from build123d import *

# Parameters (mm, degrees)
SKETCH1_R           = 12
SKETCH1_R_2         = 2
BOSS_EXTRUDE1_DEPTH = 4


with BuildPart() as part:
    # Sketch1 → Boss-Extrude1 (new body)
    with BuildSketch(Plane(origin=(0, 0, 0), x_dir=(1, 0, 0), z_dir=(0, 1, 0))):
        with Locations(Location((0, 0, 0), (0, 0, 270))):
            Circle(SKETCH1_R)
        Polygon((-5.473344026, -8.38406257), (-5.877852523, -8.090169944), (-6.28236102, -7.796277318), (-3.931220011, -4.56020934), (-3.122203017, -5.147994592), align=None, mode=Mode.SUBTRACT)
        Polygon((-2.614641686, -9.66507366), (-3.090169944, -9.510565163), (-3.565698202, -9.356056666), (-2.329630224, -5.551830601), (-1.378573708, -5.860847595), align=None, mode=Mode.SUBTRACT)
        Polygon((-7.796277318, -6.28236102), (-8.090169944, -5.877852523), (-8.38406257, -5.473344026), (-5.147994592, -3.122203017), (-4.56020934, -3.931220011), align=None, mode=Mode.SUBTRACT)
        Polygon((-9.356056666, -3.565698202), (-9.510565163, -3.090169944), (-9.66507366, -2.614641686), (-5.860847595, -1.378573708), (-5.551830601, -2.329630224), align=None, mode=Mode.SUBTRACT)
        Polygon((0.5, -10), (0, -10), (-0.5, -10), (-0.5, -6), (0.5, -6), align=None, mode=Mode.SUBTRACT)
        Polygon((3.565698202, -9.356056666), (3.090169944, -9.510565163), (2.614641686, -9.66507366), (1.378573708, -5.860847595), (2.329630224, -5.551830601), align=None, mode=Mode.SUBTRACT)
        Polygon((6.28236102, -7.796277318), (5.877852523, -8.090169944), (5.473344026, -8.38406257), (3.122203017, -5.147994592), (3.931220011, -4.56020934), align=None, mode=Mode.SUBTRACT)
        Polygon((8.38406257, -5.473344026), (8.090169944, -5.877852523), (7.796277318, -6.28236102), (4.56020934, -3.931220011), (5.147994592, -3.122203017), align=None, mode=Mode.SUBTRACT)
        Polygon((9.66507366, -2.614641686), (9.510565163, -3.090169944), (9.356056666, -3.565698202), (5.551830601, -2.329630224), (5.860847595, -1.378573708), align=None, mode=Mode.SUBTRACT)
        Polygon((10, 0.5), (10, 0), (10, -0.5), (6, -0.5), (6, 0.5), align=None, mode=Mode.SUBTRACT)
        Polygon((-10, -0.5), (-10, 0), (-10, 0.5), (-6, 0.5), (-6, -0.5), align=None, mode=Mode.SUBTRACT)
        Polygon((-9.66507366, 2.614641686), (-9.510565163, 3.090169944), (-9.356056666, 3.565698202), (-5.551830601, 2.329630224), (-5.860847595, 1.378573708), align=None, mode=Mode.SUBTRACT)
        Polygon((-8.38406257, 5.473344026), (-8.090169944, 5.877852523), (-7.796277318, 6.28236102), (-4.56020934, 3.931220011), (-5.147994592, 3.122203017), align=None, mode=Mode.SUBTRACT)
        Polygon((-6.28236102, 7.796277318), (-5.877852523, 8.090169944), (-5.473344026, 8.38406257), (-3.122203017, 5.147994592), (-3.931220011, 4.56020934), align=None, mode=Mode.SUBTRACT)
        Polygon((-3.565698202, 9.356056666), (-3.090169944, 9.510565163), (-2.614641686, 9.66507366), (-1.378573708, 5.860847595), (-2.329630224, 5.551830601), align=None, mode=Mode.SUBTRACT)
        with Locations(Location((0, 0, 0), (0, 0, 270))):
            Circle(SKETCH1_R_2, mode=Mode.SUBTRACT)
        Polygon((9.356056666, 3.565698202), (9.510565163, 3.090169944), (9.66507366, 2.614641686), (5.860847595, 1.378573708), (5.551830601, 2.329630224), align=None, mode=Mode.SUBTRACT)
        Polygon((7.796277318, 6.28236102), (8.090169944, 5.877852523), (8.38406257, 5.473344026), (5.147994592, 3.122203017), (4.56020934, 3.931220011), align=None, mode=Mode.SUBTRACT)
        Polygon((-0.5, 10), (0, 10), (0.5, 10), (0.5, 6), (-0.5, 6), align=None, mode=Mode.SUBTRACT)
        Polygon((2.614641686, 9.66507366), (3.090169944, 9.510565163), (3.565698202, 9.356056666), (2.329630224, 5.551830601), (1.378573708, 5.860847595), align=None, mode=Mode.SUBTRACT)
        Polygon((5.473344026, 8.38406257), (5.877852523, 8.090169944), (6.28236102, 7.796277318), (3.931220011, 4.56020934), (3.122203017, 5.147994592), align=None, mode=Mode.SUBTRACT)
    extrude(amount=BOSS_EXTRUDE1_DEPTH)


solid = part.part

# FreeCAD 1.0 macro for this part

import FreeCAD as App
import Part
import Sketcher
from FreeCAD import Vector
Q = App.Units.Quantity

doc = App.newDocument("Part")
body = doc.addObject("PartDesign::Body", "Body")

sketch1 = body.newObject("Sketcher::SketchObject", "Sketch")
sketch1.AttachmentSupport = (doc.getObject("XZ_Plane"), [""])
sketch1.MapMode = "FlatFace"
sketch1.addGeometry(Part.Circle(Vector(0, 0, 0), Vector(0, 0, 1), 12), False)
sketch1.addGeometry(Part.LineSegment(Vector(-5.860848, -1.378574, 0), Vector(-9.665074, -2.614642, 0)), False)
sketch1.addGeometry(Part.LineSegment(Vector(-9.665074, -2.614642, 0), Vector(-9.356057, -3.565698, 0)), False)
sketch1.addGeometry(Part.LineSegment(Vector(-9.356057, -3.565698, 0), Vector(-5.551831, -2.32963, 0)), False)
sketch1.addGeometry(Part.LineSegment(Vector(-5.551831, -2.32963, 0), Vector(-5.860848, -1.378574, 0)), False)
sketch1.addGeometry(Part.LineSegment(Vector(-5.147995, -3.122203, 0), Vector(-8.384063, -5.473344, 0)), False)
sketch1.addGeometry(Part.LineSegment(Vector(-8.384063, -5.473344, 0), Vector(-7.796277, -6.282361, 0)), False)
sketch1.addGeometry(Part.LineSegment(Vector(-7.796277, -6.282361, 0), Vector(-4.560209, -3.93122, 0)), False)
sketch1.addGeometry(Part.LineSegment(Vector(-4.560209, -3.93122, 0), Vector(-5.147995, -3.122203, 0)), False)
sketch1.addGeometry(Part.LineSegment(Vector(-3.93122, -4.560209, 0), Vector(-6.282361, -7.796277, 0)), False)
sketch1.addGeometry(Part.LineSegment(Vector(-6.282361, -7.796277, 0), Vector(-5.473344, -8.384063, 0)), False)
sketch1.addGeometry(Part.LineSegment(Vector(-5.473344, -8.384063, 0), Vector(-3.122203, -5.147995, 0)), False)
sketch1.addGeometry(Part.LineSegment(Vector(-3.122203, -5.147995, 0), Vector(-3.93122, -4.560209, 0)), False)
sketch1.addGeometry(Part.LineSegment(Vector(-2.32963, -5.551831, 0), Vector(-3.565698, -9.356057, 0)), False)
sketch1.addGeometry(Part.LineSegment(Vector(-3.565698, -9.356057, 0), Vector(-2.614642, -9.665074, 0)), False)
sketch1.addGeometry(Part.LineSegment(Vector(-2.614642, -9.665074, 0), Vector(-1.378574, -5.860848, 0)), False)
sketch1.addGeometry(Part.LineSegment(Vector(-1.378574, -5.860848, 0), Vector(-2.32963, -5.551831, 0)), False)
sketch1.addGeometry(Part.LineSegment(Vector(-0.5, -6, 0), Vector(-0.5, -10, 0)), False)
sketch1.addGeometry(Part.LineSegment(Vector(-0.5, -10, 0), Vector(0.5, -10, 0)), False)
sketch1.addGeometry(Part.LineSegment(Vector(0.5, -10, 0), Vector(0.5, -6, 0)), False)
sketch1.addGeometry(Part.LineSegment(Vector(0.5, -6, 0), Vector(-0.5, -6, 0)), False)
sketch1.addGeometry(Part.LineSegment(Vector(-6, 0.5, 0), Vector(-10, 0.5, 0)), False)
sketch1.addGeometry(Part.LineSegment(Vector(-10, 0.5, 0), Vector(-10, -0.5, 0)), False)
sketch1.addGeometry(Part.LineSegment(Vector(-10, -0.5, 0), Vector(-6, -0.5, 0)), False)
sketch1.addGeometry(Part.LineSegment(Vector(-6, -0.5, 0), Vector(-6, 0.5, 0)), False)
sketch1.addGeometry(Part.LineSegment(Vector(-5.551831, 2.32963, 0), Vector(-9.356057, 3.565698, 0)), False)
sketch1.addGeometry(Part.LineSegment(Vector(-9.356057, 3.565698, 0), Vector(-9.665074, 2.614642, 0)), False)
sketch1.addGeometry(Part.LineSegment(Vector(-9.665074, 2.614642, 0), Vector(-5.860848, 1.378574, 0)), False)
sketch1.addGeometry(Part.LineSegment(Vector(-5.860848, 1.378574, 0), Vector(-5.551831, 2.32963, 0)), False)
sketch1.addGeometry(Part.LineSegment(Vector(-4.560209, 3.93122, 0), Vector(-7.796277, 6.282361, 0)), False)
sketch1.addGeometry(Part.LineSegment(Vector(-7.796277, 6.282361, 0), Vector(-8.384063, 5.473344, 0)), False)
sketch1.addGeometry(Part.LineSegment(Vector(-8.384063, 5.473344, 0), Vector(-5.147995, 3.122203, 0)), False)
sketch1.addGeometry(Part.LineSegment(Vector(-5.147995, 3.122203, 0), Vector(-4.560209, 3.93122, 0)), False)
sketch1.addGeometry(Part.LineSegment(Vector(-3.122203, 5.147995, 0), Vector(-5.473344, 8.384063, 0)), False)
sketch1.addGeometry(Part.LineSegment(Vector(-5.473344, 8.384063, 0), Vector(-6.282361, 7.796277, 0)), False)
sketch1.addGeometry(Part.LineSegment(Vector(-6.282361, 7.796277, 0), Vector(-3.93122, 4.560209, 0)), False)
sketch1.addGeometry(Part.LineSegment(Vector(-3.93122, 4.560209, 0), Vector(-3.122203, 5.147995, 0)), False)
sketch1.addGeometry(Part.LineSegment(Vector(-1.378574, 5.860848, 0), Vector(-2.614642, 9.665074, 0)), False)
sketch1.addGeometry(Part.LineSegment(Vector(-2.614642, 9.665074, 0), Vector(-3.565698, 9.356057, 0)), False)
sketch1.addGeometry(Part.LineSegment(Vector(-3.565698, 9.356057, 0), Vector(-2.32963, 5.551831, 0)), False)
sketch1.addGeometry(Part.LineSegment(Vector(-2.32963, 5.551831, 0), Vector(-1.378574, 5.860848, 0)), False)
sketch1.addGeometry(Part.LineSegment(Vector(1.378574, -5.860848, 0), Vector(2.614642, -9.665074, 0)), False)
sketch1.addGeometry(Part.LineSegment(Vector(2.614642, -9.665074, 0), Vector(3.565698, -9.356057, 0)), False)
sketch1.addGeometry(Part.LineSegment(Vector(3.565698, -9.356057, 0), Vector(2.32963, -5.551831, 0)), False)
sketch1.addGeometry(Part.LineSegment(Vector(2.32963, -5.551831, 0), Vector(1.378574, -5.860848, 0)), False)
sketch1.addGeometry(Part.LineSegment(Vector(3.122203, -5.147995, 0), Vector(5.473344, -8.384063, 0)), False)
sketch1.addGeometry(Part.LineSegment(Vector(5.473344, -8.384063, 0), Vector(6.282361, -7.796277, 0)), False)
sketch1.addGeometry(Part.LineSegment(Vector(6.282361, -7.796277, 0), Vector(3.93122, -4.560209, 0)), False)
sketch1.addGeometry(Part.LineSegment(Vector(3.93122, -4.560209, 0), Vector(3.122203, -5.147995, 0)), False)
sketch1.addGeometry(Part.LineSegment(Vector(4.560209, -3.93122, 0), Vector(7.796277, -6.282361, 0)), False)
sketch1.addGeometry(Part.LineSegment(Vector(7.796277, -6.282361, 0), Vector(8.384063, -5.473344, 0)), False)
sketch1.addGeometry(Part.LineSegment(Vector(8.384063, -5.473344, 0), Vector(5.147995, -3.122203, 0)), False)
sketch1.addGeometry(Part.LineSegment(Vector(5.147995, -3.122203, 0), Vector(4.560209, -3.93122, 0)), False)
sketch1.addGeometry(Part.LineSegment(Vector(5.551831, -2.32963, 0), Vector(9.356057, -3.565698, 0)), False)
sketch1.addGeometry(Part.LineSegment(Vector(9.356057, -3.565698, 0), Vector(9.665074, -2.614642, 0)), False)
sketch1.addGeometry(Part.LineSegment(Vector(9.665074, -2.614642, 0), Vector(5.860848, -1.378574, 0)), False)
sketch1.addGeometry(Part.LineSegment(Vector(5.860848, -1.378574, 0), Vector(5.551831, -2.32963, 0)), False)
sketch1.addGeometry(Part.LineSegment(Vector(6, -0.5, 0), Vector(10, -0.5, 0)), False)
sketch1.addGeometry(Part.LineSegment(Vector(10, -0.5, 0), Vector(10, 0.5, 0)), False)
sketch1.addGeometry(Part.LineSegment(Vector(10, 0.5, 0), Vector(6, 0.5, 0)), False)
sketch1.addGeometry(Part.LineSegment(Vector(6, 0.5, 0), Vector(6, -0.5, 0)), False)
sketch1.addGeometry(Part.Circle(Vector(0, 0, 0), Vector(0, 0, 1), 2), False)
sketch1.addGeometry(Part.LineSegment(Vector(0.5, 6, 0), Vector(0.5, 10, 0)), False)
sketch1.addGeometry(Part.LineSegment(Vector(0.5, 10, 0), Vector(-0.5, 10, 0)), False)
sketch1.addGeometry(Part.LineSegment(Vector(-0.5, 10, 0), Vector(-0.5, 6, 0)), False)
sketch1.addGeometry(Part.LineSegment(Vector(-0.5, 6, 0), Vector(0.5, 6, 0)), False)
sketch1.addGeometry(Part.LineSegment(Vector(2.32963, 5.551831, 0), Vector(3.565698, 9.356057, 0)), False)
sketch1.addGeometry(Part.LineSegment(Vector(3.565698, 9.356057, 0), Vector(2.614642, 9.665074, 0)), False)
sketch1.addGeometry(Part.LineSegment(Vector(2.614642, 9.665074, 0), Vector(1.378574, 5.860848, 0)), False)
sketch1.addGeometry(Part.LineSegment(Vector(1.378574, 5.860848, 0), Vector(2.32963, 5.551831, 0)), False)
sketch1.addGeometry(Part.LineSegment(Vector(3.93122, 4.560209, 0), Vector(6.282361, 7.796277, 0)), False)
sketch1.addGeometry(Part.LineSegment(Vector(6.282361, 7.796277, 0), Vector(5.473344, 8.384063, 0)), False)
sketch1.addGeometry(Part.LineSegment(Vector(5.473344, 8.384063, 0), Vector(3.122203, 5.147995, 0)), False)
sketch1.addGeometry(Part.LineSegment(Vector(3.122203, 5.147995, 0), Vector(3.93122, 4.560209, 0)), False)
sketch1.addGeometry(Part.LineSegment(Vector(5.147995, 3.122203, 0), Vector(8.384063, 5.473344, 0)), False)
sketch1.addGeometry(Part.LineSegment(Vector(8.384063, 5.473344, 0), Vector(7.796277, 6.282361, 0)), False)
sketch1.addGeometry(Part.LineSegment(Vector(7.796277, 6.282361, 0), Vector(4.560209, 3.93122, 0)), False)
sketch1.addGeometry(Part.LineSegment(Vector(4.560209, 3.93122, 0), Vector(5.147995, 3.122203, 0)), False)
sketch1.addGeometry(Part.LineSegment(Vector(5.860848, 1.378574, 0), Vector(9.665074, 2.614642, 0)), False)
sketch1.addGeometry(Part.LineSegment(Vector(9.665074, 2.614642, 0), Vector(9.356057, 3.565698, 0)), False)
sketch1.addGeometry(Part.LineSegment(Vector(9.356057, 3.565698, 0), Vector(5.551831, 2.32963, 0)), False)
sketch1.addGeometry(Part.LineSegment(Vector(5.551831, 2.32963, 0), Vector(5.860848, 1.378574, 0)), False)
sketch1.addConstraint(Sketcher.Constraint("Coincident", 1, 2, 2, 1))
sketch1.addConstraint(Sketcher.Constraint("Coincident", 2, 2, 3, 1))
sketch1.addConstraint(Sketcher.Constraint("Coincident", 3, 2, 4, 1))
sketch1.addConstraint(Sketcher.Constraint("Coincident", 4, 2, 1, 1))
sketch1.addConstraint(Sketcher.Constraint("Coincident", 5, 2, 6, 1))
sketch1.addConstraint(Sketcher.Constraint("Coincident", 6, 2, 7, 1))
sketch1.addConstraint(Sketcher.Constraint("Coincident", 7, 2, 8, 1))
sketch1.addConstraint(Sketcher.Constraint("Coincident", 8, 2, 5, 1))
sketch1.addConstraint(Sketcher.Constraint("Coincident", 9, 2, 10, 1))
sketch1.addConstraint(Sketcher.Constraint("Coincident", 10, 2, 11, 1))
sketch1.addConstraint(Sketcher.Constraint("Coincident", 11, 2, 12, 1))
sketch1.addConstraint(Sketcher.Constraint("Coincident", 12, 2, 9, 1))
sketch1.addConstraint(Sketcher.Constraint("Coincident", 13, 2, 14, 1))
sketch1.addConstraint(Sketcher.Constraint("Coincident", 14, 2, 15, 1))
sketch1.addConstraint(Sketcher.Constraint("Coincident", 15, 2, 16, 1))
sketch1.addConstraint(Sketcher.Constraint("Coincident", 16, 2, 13, 1))
sketch1.addConstraint(Sketcher.Constraint("Coincident", 17, 2, 18, 1))
sketch1.addConstraint(Sketcher.Constraint("Coincident", 18, 2, 19, 1))
sketch1.addConstraint(Sketcher.Constraint("Coincident", 19, 2, 20, 1))
sketch1.addConstraint(Sketcher.Constraint("Coincident", 20, 2, 17, 1))
sketch1.addConstraint(Sketcher.Constraint("Coincident", 21, 2, 22, 1))
sketch1.addConstraint(Sketcher.Constraint("Coincident", 22, 2, 23, 1))
sketch1.addConstraint(Sketcher.Constraint("Coincident", 23, 2, 24, 1))
sketch1.addConstraint(Sketcher.Constraint("Coincident", 24, 2, 21, 1))
sketch1.addConstraint(Sketcher.Constraint("Coincident", 25, 2, 26, 1))
sketch1.addConstraint(Sketcher.Constraint("Coincident", 26, 2, 27, 1))
sketch1.addConstraint(Sketcher.Constraint("Coincident", 27, 2, 28, 1))
sketch1.addConstraint(Sketcher.Constraint("Coincident", 28, 2, 25, 1))
sketch1.addConstraint(Sketcher.Constraint("Coincident", 29, 2, 30, 1))
sketch1.addConstraint(Sketcher.Constraint("Coincident", 30, 2, 31, 1))
sketch1.addConstraint(Sketcher.Constraint("Coincident", 31, 2, 32, 1))
sketch1.addConstraint(Sketcher.Constraint("Coincident", 32, 2, 29, 1))
sketch1.addConstraint(Sketcher.Constraint("Coincident", 33, 2, 34, 1))
sketch1.addConstraint(Sketcher.Constraint("Coincident", 34, 2, 35, 1))
sketch1.addConstraint(Sketcher.Constraint("Coincident", 35, 2, 36, 1))
sketch1.addConstraint(Sketcher.Constraint("Coincident", 36, 2, 33, 1))
sketch1.addConstraint(Sketcher.Constraint("Coincident", 37, 2, 38, 1))
sketch1.addConstraint(Sketcher.Constraint("Coincident", 38, 2, 39, 1))
sketch1.addConstraint(Sketcher.Constraint("Coincident", 39, 2, 40, 1))
sketch1.addConstraint(Sketcher.Constraint("Coincident", 40, 2, 37, 1))
sketch1.addConstraint(Sketcher.Constraint("Coincident", 41, 2, 42, 1))
sketch1.addConstraint(Sketcher.Constraint("Coincident", 42, 2, 43, 1))
sketch1.addConstraint(Sketcher.Constraint("Coincident", 43, 2, 44, 1))
sketch1.addConstraint(Sketcher.Constraint("Coincident", 44, 2, 41, 1))
sketch1.addConstraint(Sketcher.Constraint("Coincident", 45, 2, 46, 1))
sketch1.addConstraint(Sketcher.Constraint("Coincident", 46, 2, 47, 1))
sketch1.addConstraint(Sketcher.Constraint("Coincident", 47, 2, 48, 1))
sketch1.addConstraint(Sketcher.Constraint("Coincident", 48, 2, 45, 1))
sketch1.addConstraint(Sketcher.Constraint("Coincident", 49, 2, 50, 1))
sketch1.addConstraint(Sketcher.Constraint("Coincident", 50, 2, 51, 1))
sketch1.addConstraint(Sketcher.Constraint("Coincident", 51, 2, 52, 1))
sketch1.addConstraint(Sketcher.Constraint("Coincident", 52, 2, 49, 1))
sketch1.addConstraint(Sketcher.Constraint("Coincident", 53, 2, 54, 1))
sketch1.addConstraint(Sketcher.Constraint("Coincident", 54, 2, 55, 1))
sketch1.addConstraint(Sketcher.Constraint("Coincident", 55, 2, 56, 1))
sketch1.addConstraint(Sketcher.Constraint("Coincident", 56, 2, 53, 1))
sketch1.addConstraint(Sketcher.Constraint("Coincident", 57, 2, 58, 1))
sketch1.addConstraint(Sketcher.Constraint("Coincident", 58, 2, 59, 1))
sketch1.addConstraint(Sketcher.Constraint("Coincident", 59, 2, 60, 1))
sketch1.addConstraint(Sketcher.Constraint("Coincident", 60, 2, 57, 1))
sketch1.addConstraint(Sketcher.Constraint("Coincident", 62, 2, 63, 1))
sketch1.addConstraint(Sketcher.Constraint("Coincident", 63, 2, 64, 1))
sketch1.addConstraint(Sketcher.Constraint("Coincident", 64, 2, 65, 1))
sketch1.addConstraint(Sketcher.Constraint("Coincident", 65, 2, 62, 1))
sketch1.addConstraint(Sketcher.Constraint("Coincident", 66, 2, 67, 1))
sketch1.addConstraint(Sketcher.Constraint("Coincident", 67, 2, 68, 1))
sketch1.addConstraint(Sketcher.Constraint("Coincident", 68, 2, 69, 1))
sketch1.addConstraint(Sketcher.Constraint("Coincident", 69, 2, 66, 1))
sketch1.addConstraint(Sketcher.Constraint("Coincident", 70, 2, 71, 1))
sketch1.addConstraint(Sketcher.Constraint("Coincident", 71, 2, 72, 1))
sketch1.addConstraint(Sketcher.Constraint("Coincident", 72, 2, 73, 1))
sketch1.addConstraint(Sketcher.Constraint("Coincident", 73, 2, 70, 1))
sketch1.addConstraint(Sketcher.Constraint("Coincident", 74, 2, 75, 1))
sketch1.addConstraint(Sketcher.Constraint("Coincident", 75, 2, 76, 1))
sketch1.addConstraint(Sketcher.Constraint("Coincident", 76, 2, 77, 1))
sketch1.addConstraint(Sketcher.Constraint("Coincident", 77, 2, 74, 1))
sketch1.addConstraint(Sketcher.Constraint("Coincident", 78, 2, 79, 1))
sketch1.addConstraint(Sketcher.Constraint("Coincident", 79, 2, 80, 1))
sketch1.addConstraint(Sketcher.Constraint("Coincident", 80, 2, 81, 1))
sketch1.addConstraint(Sketcher.Constraint("Coincident", 81, 2, 78, 1))
sketch1.addConstraint(Sketcher.Constraint("Vertical", 17))
sketch1.addConstraint(Sketcher.Constraint("Horizontal", 18))
sketch1.addConstraint(Sketcher.Constraint("Vertical", 19))
sketch1.addConstraint(Sketcher.Constraint("Horizontal", 20))
sketch1.addConstraint(Sketcher.Constraint("Horizontal", 21))
sketch1.addConstraint(Sketcher.Constraint("Vertical", 22))
sketch1.addConstraint(Sketcher.Constraint("Horizontal", 23))
sketch1.addConstraint(Sketcher.Constraint("Vertical", 24))
sketch1.addConstraint(Sketcher.Constraint("Horizontal", 57))
sketch1.addConstraint(Sketcher.Constraint("Vertical", 58))
sketch1.addConstraint(Sketcher.Constraint("Horizontal", 59))
sketch1.addConstraint(Sketcher.Constraint("Vertical", 60))
sketch1.addConstraint(Sketcher.Constraint("Vertical", 62))
sketch1.addConstraint(Sketcher.Constraint("Horizontal", 63))
sketch1.addConstraint(Sketcher.Constraint("Vertical", 64))
sketch1.addConstraint(Sketcher.Constraint("Horizontal", 65))
sketch1.addConstraint(Sketcher.Constraint("Coincident", 0, 3, -1, 1))
sketch1.addConstraint(Sketcher.Constraint("Coincident", 61, 3, -1, 1))
sketch1.addConstraint(Sketcher.Constraint("Symmetric", 37, 2, 41, 2, -1, 1))
sketch1.addConstraint(Sketcher.Constraint("Symmetric", 38, 2, 42, 2, -1, 1))
sketch1.addConstraint(Sketcher.Constraint("Symmetric", 39, 2, 43, 2, -1, 1))
sketch1.addConstraint(Sketcher.Constraint("Symmetric", 40, 2, 44, 2, -1, 1))
sketch1.addConstraint(Sketcher.Constraint("Symmetric", 33, 2, 45, 2, -1, 1))
sketch1.addConstraint(Sketcher.Constraint("Symmetric", 34, 2, 46, 2, -1, 1))
sketch1.addConstraint(Sketcher.Constraint("Symmetric", 35, 2, 47, 2, -1, 1))
sketch1.addConstraint(Sketcher.Constraint("Symmetric", 36, 2, 48, 2, -1, 1))
sketch1.addConstraint(Sketcher.Constraint("Symmetric", 29, 2, 49, 2, -1, 1))
sketch1.addConstraint(Sketcher.Constraint("Symmetric", 30, 2, 50, 2, -1, 1))
sketch1.addConstraint(Sketcher.Constraint("Symmetric", 31, 2, 51, 2, -1, 1))
sketch1.addConstraint(Sketcher.Constraint("Symmetric", 32, 2, 52, 2, -1, 1))
sketch1.addConstraint(Sketcher.Constraint("Symmetric", 25, 2, 53, 2, -1, 1))
sketch1.addConstraint(Sketcher.Constraint("Symmetric", 26, 2, 54, 2, -1, 1))
sketch1.addConstraint(Sketcher.Constraint("Symmetric", 27, 2, 55, 2, -1, 1))
sketch1.addConstraint(Sketcher.Constraint("Symmetric", 28, 2, 56, 2, -1, 1))
sketch1.addConstraint(Sketcher.Constraint("Symmetric", 21, 2, 57, 2, -1, 1))
sketch1.addConstraint(Sketcher.Constraint("Symmetric", 23, 2, 59, 2, -1, 1))
sketch1.addConstraint(Sketcher.Constraint("Symmetric", 17, 2, 62, 2, -1, 1))
sketch1.addConstraint(Sketcher.Constraint("Symmetric", 19, 2, 64, 2, -1, 1))
sketch1.addConstraint(Sketcher.Constraint("Symmetric", 13, 2, 66, 2, -1, 1))
sketch1.addConstraint(Sketcher.Constraint("Symmetric", 14, 2, 67, 2, -1, 1))
sketch1.addConstraint(Sketcher.Constraint("Symmetric", 15, 2, 68, 2, -1, 1))
sketch1.addConstraint(Sketcher.Constraint("Symmetric", 16, 2, 69, 2, -1, 1))
sketch1.addConstraint(Sketcher.Constraint("Symmetric", 9, 2, 70, 2, -1, 1))
sketch1.addConstraint(Sketcher.Constraint("Symmetric", 10, 2, 71, 2, -1, 1))
sketch1.addConstraint(Sketcher.Constraint("Symmetric", 11, 2, 72, 2, -1, 1))
sketch1.addConstraint(Sketcher.Constraint("Symmetric", 12, 2, 73, 2, -1, 1))
sketch1.addConstraint(Sketcher.Constraint("Symmetric", 5, 2, 74, 2, -1, 1))
sketch1.addConstraint(Sketcher.Constraint("Symmetric", 6, 2, 75, 2, -1, 1))
sketch1.addConstraint(Sketcher.Constraint("Symmetric", 7, 2, 76, 2, -1, 1))
sketch1.addConstraint(Sketcher.Constraint("Symmetric", 8, 2, 77, 2, -1, 1))
sketch1.addConstraint(Sketcher.Constraint("Symmetric", 1, 2, 78, 2, -1, 1))
sketch1.addConstraint(Sketcher.Constraint("Symmetric", 2, 2, 79, 2, -1, 1))
sketch1.addConstraint(Sketcher.Constraint("Symmetric", 3, 2, 80, 2, -1, 1))
sketch1.addConstraint(Sketcher.Constraint("Symmetric", 4, 2, 81, 2, -1, 1))
sketch1.addConstraint(Sketcher.Constraint("Symmetric", 14, 2, 41, 2, -2))
sketch1.addConstraint(Sketcher.Constraint("Symmetric", 13, 2, 42, 2, -2))
sketch1.addConstraint(Sketcher.Constraint("Symmetric", 16, 2, 43, 2, -2))
sketch1.addConstraint(Sketcher.Constraint("Symmetric", 15, 2, 44, 2, -2))
sketch1.addConstraint(Sketcher.Constraint("Symmetric", 10, 2, 45, 2, -2))
sketch1.addConstraint(Sketcher.Constraint("Symmetric", 9, 2, 46, 2, -2))
sketch1.addConstraint(Sketcher.Constraint("Symmetric", 12, 2, 47, 2, -2))
sketch1.addConstraint(Sketcher.Constraint("Symmetric", 11, 2, 48, 2, -2))
sketch1.addConstraint(Sketcher.Constraint("Symmetric", 6, 2, 49, 2, -2))
sketch1.addConstraint(Sketcher.Constraint("Symmetric", 5, 2, 50, 2, -2))
sketch1.addConstraint(Sketcher.Constraint("Symmetric", 8, 2, 51, 2, -2))
sketch1.addConstraint(Sketcher.Constraint("Symmetric", 7, 2, 52, 2, -2))
sketch1.addConstraint(Sketcher.Constraint("Symmetric", 2, 2, 53, 2, -2))
sketch1.addConstraint(Sketcher.Constraint("Symmetric", 1, 2, 54, 2, -2))
sketch1.addConstraint(Sketcher.Constraint("Symmetric", 4, 2, 55, 2, -2))
sketch1.addConstraint(Sketcher.Constraint("Symmetric", 3, 2, 56, 2, -2))
sketch1.addConstraint(Sketcher.Constraint("Perpendicular", 1, 2))
sketch1.addConstraint(Sketcher.Constraint("Perpendicular", 2, 3))
sketch1.addConstraint(Sketcher.Constraint("Perpendicular", 3, 4))
sketch1.addConstraint(Sketcher.Constraint("Perpendicular", 5, 6))
sketch1.addConstraint(Sketcher.Constraint("Perpendicular", 6, 7))
sketch1.addConstraint(Sketcher.Constraint("Perpendicular", 7, 8))
sketch1.addConstraint(Sketcher.Constraint("Perpendicular", 9, 10))
sketch1.addConstraint(Sketcher.Constraint("Perpendicular", 10, 11))
sketch1.addConstraint(Sketcher.Constraint("Perpendicular", 11, 12))
sketch1.addConstraint(Sketcher.Constraint("Perpendicular", 13, 14))
sketch1.addConstraint(Sketcher.Constraint("Perpendicular", 14, 15))
sketch1.addConstraint(Sketcher.Constraint("Perpendicular", 15, 16))
sketch1.addConstraint(Sketcher.Constraint("Parallel", 16, 25))
sketch1.addConstraint(Sketcher.Constraint("Parallel", 12, 29))
sketch1.addConstraint(Sketcher.Constraint("Horizontal", 23, 2, 57, 2))
sketch1.addConstraint(Sketcher.Constraint("Vertical", 19, 2, 62, 2))
sketch1.addConstraint(Sketcher.Constraint("Equal", 59, 17))
sketch1.addConstraint(Sketcher.Constraint("Equal", 65, 22))
sketch1.addConstraint(Sketcher.Constraint("Equal", 3, 5))
sketch1.addConstraint(Sketcher.Constraint("Equal", 4, 6))
sketch1.addConstraint(Sketcher.Constraint("Equal", 7, 9))
sketch1.addConstraint(Sketcher.Constraint("Equal", 8, 10))
sketch1.addConstraint(Sketcher.Constraint("Equal", 11, 13))
sketch1.addConstraint(Sketcher.Constraint("Equal", 12, 14))
sketch1.addConstraint(Sketcher.Constraint("Diameter", 0, 24.0))
sketch1.addConstraint(Sketcher.Constraint("Diameter", 61, 4.0))
sketch1.addConstraint(Sketcher.Constraint("DistanceX", 18, 1, 18, 2, 1.0))
sketch1.addConstraint(Sketcher.Constraint("DistanceX", 21, 2, 21, 1, 4.0))
sketch1.addConstraint(Sketcher.Constraint("Angle", 1, Q("-162 deg")))
sketch1.addConstraint(Sketcher.Constraint("Angle", 5, Q("-144 deg")))
sketch1.addConstraint(Sketcher.Constraint("Distance", 1, 4.0))
sketch1.addConstraint(Sketcher.Constraint("Distance", 2, 1.0))
sketch1.addConstraint(Sketcher.Constraint("DistanceY", 17, 2, -1, 1, 10.0))
sketch1.addConstraint(Sketcher.Constraint("DistanceX", 21, 2, -1, 1, 10.0))
sketch1.addConstraint(Sketcher.Constraint("DistanceY", 2, 2, -1, 1, 3.565698))
sketch1.addConstraint(Sketcher.Constraint("DistanceX", 13, 2, -1, 1, 3.565698))
sketch1.addConstraint(Sketcher.Constraint("DistanceX", 3, 2, -1, 1, 5.551831))
sketch1.addConstraint(Sketcher.Constraint("DistanceY", 6, 2, -1, 1, 6.282361))
sketch1.addConstraint(Sketcher.Constraint("DistanceX", 7, 2, -1, 1, 4.560209))
sketch1.addConstraint(Sketcher.Constraint("DistanceX", 9, 2, -1, 1, 6.282361))
sketch1.addConstraint(Sketcher.Constraint("DistanceY", 12, 2, -1, 1, 4.560209))
sketch1.addConstraint(Sketcher.Constraint("DistanceY", 16, 2, -1, 1, 5.551831))
pad1 = body.newObject("PartDesign::Pad", "Pad")
pad1.Profile = sketch1
pad1.Length = 4
pad1.Reversed = True

doc.recompute()
